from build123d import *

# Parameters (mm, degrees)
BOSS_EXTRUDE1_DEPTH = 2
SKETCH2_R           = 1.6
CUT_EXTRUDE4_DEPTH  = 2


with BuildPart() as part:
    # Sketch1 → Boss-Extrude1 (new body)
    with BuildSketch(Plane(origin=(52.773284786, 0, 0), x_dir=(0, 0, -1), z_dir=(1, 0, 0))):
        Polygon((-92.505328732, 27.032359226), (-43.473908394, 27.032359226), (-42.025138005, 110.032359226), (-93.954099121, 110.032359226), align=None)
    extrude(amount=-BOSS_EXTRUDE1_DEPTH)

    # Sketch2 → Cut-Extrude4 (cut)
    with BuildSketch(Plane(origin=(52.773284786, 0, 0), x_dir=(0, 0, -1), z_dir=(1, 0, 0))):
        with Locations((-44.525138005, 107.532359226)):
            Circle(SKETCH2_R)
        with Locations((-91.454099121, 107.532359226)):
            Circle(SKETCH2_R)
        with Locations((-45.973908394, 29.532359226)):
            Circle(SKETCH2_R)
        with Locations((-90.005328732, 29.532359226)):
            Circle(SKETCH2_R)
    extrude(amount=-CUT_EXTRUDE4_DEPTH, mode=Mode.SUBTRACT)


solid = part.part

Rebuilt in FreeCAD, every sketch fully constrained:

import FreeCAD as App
import Part
import Sketcher
from FreeCAD import Vector
Q = App.Units.Quantity

doc = App.newDocument("Part")
params = doc.addObject("Spreadsheet::Sheet", "Params")
for row, (alias, value) in enumerate([
    ("pad1_length", "2 mm"),
    ("sketch2_diameter", "3.2 mm"),
    ("pocket1_length", "2 mm"),
], start=1):
    params.set(f"A{row}", alias)
    params.set(f"B{row}", "=" + value)
    params.setAlias(f"B{row}", alias)

body = doc.addObject("PartDesign::Body", "Body")

sketch1 = doc.addObject("Sketcher::SketchObject", "Sketch")
body.addObject(sketch1)
sketch1.AttachmentSupport = (doc.YZ_Plane, [""])
sketch1.MapMode = "FlatFace"
sketch1.AttachmentOffset = App.Placement(Vector(0, 0, 52.773285), App.Rotation())
sketch1.addGeometry([
    Part.LineSegment(Vector(27.032359, 92.505329, 0), Vector(27.032359, 43.473908, 0)),
    Part.LineSegment(Vector(27.032359, 43.473908, 0), Vector(110.032359, 42.025138, 0)),
    Part.LineSegment(Vector(110.032359, 42.025138, 0), Vector(110.032359, 93.954099, 0)),
    Part.LineSegment(Vector(110.032359, 93.954099, 0), Vector(27.032359, 92.505329, 0)),
], False)
sketch1.addConstraint([
    Sketcher.Constraint("Coincident", 0, 2, 1, 1),
    Sketcher.Constraint("Coincident", 1, 2, 2, 1),
    Sketcher.Constraint("Coincident", 2, 2, 3, 1),
    Sketcher.Constraint("Coincident", 3, 2, 0, 1),
    Sketcher.Constraint("Vertical", 0),
    Sketcher.Constraint("Vertical", 2),
    Sketcher.Constraint("Equal", 1, 3),
    Sketcher.Constraint("Angle", 1, Q("-1 deg")),
    Sketcher.Constraint("DistanceX", 0, 2, 1, 2, Q("83 mm")),
    Sketcher.Constraint("DistanceY", 0, 2, 0, 1, Q("49.03142 mm")),
    Sketcher.Constraint("DistanceY", -1, 1, 2, 2, Q("93.954099 mm")),
    Sketcher.Constraint("DistanceX", -1, 1, 0, 2, Q("27.032359 mm")),
])
pad1 = doc.addObject("PartDesign::Pad", "Pad")
body.addObject(pad1)
pad1.Profile = sketch1
pad1.setExpression("Length", "Params.pad1_length")
pad1.Reversed = True

sketch2 = doc.addObject("Sketcher::SketchObject", "Sketch001")
body.addObject(sketch2)
sketch2.AttachmentSupport = (doc.YZ_Plane, [""])
sketch2.MapMode = "FlatFace"
sketch2.AttachmentOffset = App.Placement(Vector(0, 0, 52.773285), App.Rotation())
sketch2.addGeometry([
    Part.Circle(Vector(107.532359, 44.525138, 0), Vector(0, 0, 1), 1.6),
    Part.Circle(Vector(107.532359, 91.454099, 0), Vector(0, 0, 1), 1.6),
    Part.Circle(Vector(29.532359, 45.973908, 0), Vector(0, 0, 1), 1.6),
    Part.Circle(Vector(29.532359, 90.005329, 0), Vector(0, 0, 1), 1.6),
], False)
sketch2.addConstraint([
    Sketcher.Constraint("Equal", 0, 1),
    Sketcher.Constraint("Equal", 1, 2),
    Sketcher.Constraint("Equal", 2, 3),
    Sketcher.Constraint("Vertical", 0, 3, 1, 3),
    Sketcher.Constraint("Vertical", 2, 3, 3, 3),
    Sketcher.Constraint("Diameter", 0, Q("3.2 mm")),
    Sketcher.Constraint("DistanceX", 2, 3, 0, 3, Q("78 mm")),
    Sketcher.Constraint("DistanceY", -1, 1, 1, 3, Q("91.454099 mm")),
    Sketcher.Constraint("DistanceX", -1, 1, 0, 3, Q("107.532359 mm")),
    Sketcher.Constraint("DistanceY", -1, 1, 0, 3, Q("44.525138 mm")),
    Sketcher.Constraint("DistanceY", -1, 1, 2, 3, Q("45.973908 mm")),
    Sketcher.Constraint("DistanceY", -1, 1, 3, 3, Q("90.005329 mm")),
])
sketch2.setExpression("Constraints[5]", "Params.sketch2_diameter")
pocket1 = doc.addObject("PartDesign::Pocket", "Pocket")
body.addObject(pocket1)
pocket1.Profile = sketch2
pocket1.setExpression("Length", "Params.pocket1_length")

doc.recompute()
